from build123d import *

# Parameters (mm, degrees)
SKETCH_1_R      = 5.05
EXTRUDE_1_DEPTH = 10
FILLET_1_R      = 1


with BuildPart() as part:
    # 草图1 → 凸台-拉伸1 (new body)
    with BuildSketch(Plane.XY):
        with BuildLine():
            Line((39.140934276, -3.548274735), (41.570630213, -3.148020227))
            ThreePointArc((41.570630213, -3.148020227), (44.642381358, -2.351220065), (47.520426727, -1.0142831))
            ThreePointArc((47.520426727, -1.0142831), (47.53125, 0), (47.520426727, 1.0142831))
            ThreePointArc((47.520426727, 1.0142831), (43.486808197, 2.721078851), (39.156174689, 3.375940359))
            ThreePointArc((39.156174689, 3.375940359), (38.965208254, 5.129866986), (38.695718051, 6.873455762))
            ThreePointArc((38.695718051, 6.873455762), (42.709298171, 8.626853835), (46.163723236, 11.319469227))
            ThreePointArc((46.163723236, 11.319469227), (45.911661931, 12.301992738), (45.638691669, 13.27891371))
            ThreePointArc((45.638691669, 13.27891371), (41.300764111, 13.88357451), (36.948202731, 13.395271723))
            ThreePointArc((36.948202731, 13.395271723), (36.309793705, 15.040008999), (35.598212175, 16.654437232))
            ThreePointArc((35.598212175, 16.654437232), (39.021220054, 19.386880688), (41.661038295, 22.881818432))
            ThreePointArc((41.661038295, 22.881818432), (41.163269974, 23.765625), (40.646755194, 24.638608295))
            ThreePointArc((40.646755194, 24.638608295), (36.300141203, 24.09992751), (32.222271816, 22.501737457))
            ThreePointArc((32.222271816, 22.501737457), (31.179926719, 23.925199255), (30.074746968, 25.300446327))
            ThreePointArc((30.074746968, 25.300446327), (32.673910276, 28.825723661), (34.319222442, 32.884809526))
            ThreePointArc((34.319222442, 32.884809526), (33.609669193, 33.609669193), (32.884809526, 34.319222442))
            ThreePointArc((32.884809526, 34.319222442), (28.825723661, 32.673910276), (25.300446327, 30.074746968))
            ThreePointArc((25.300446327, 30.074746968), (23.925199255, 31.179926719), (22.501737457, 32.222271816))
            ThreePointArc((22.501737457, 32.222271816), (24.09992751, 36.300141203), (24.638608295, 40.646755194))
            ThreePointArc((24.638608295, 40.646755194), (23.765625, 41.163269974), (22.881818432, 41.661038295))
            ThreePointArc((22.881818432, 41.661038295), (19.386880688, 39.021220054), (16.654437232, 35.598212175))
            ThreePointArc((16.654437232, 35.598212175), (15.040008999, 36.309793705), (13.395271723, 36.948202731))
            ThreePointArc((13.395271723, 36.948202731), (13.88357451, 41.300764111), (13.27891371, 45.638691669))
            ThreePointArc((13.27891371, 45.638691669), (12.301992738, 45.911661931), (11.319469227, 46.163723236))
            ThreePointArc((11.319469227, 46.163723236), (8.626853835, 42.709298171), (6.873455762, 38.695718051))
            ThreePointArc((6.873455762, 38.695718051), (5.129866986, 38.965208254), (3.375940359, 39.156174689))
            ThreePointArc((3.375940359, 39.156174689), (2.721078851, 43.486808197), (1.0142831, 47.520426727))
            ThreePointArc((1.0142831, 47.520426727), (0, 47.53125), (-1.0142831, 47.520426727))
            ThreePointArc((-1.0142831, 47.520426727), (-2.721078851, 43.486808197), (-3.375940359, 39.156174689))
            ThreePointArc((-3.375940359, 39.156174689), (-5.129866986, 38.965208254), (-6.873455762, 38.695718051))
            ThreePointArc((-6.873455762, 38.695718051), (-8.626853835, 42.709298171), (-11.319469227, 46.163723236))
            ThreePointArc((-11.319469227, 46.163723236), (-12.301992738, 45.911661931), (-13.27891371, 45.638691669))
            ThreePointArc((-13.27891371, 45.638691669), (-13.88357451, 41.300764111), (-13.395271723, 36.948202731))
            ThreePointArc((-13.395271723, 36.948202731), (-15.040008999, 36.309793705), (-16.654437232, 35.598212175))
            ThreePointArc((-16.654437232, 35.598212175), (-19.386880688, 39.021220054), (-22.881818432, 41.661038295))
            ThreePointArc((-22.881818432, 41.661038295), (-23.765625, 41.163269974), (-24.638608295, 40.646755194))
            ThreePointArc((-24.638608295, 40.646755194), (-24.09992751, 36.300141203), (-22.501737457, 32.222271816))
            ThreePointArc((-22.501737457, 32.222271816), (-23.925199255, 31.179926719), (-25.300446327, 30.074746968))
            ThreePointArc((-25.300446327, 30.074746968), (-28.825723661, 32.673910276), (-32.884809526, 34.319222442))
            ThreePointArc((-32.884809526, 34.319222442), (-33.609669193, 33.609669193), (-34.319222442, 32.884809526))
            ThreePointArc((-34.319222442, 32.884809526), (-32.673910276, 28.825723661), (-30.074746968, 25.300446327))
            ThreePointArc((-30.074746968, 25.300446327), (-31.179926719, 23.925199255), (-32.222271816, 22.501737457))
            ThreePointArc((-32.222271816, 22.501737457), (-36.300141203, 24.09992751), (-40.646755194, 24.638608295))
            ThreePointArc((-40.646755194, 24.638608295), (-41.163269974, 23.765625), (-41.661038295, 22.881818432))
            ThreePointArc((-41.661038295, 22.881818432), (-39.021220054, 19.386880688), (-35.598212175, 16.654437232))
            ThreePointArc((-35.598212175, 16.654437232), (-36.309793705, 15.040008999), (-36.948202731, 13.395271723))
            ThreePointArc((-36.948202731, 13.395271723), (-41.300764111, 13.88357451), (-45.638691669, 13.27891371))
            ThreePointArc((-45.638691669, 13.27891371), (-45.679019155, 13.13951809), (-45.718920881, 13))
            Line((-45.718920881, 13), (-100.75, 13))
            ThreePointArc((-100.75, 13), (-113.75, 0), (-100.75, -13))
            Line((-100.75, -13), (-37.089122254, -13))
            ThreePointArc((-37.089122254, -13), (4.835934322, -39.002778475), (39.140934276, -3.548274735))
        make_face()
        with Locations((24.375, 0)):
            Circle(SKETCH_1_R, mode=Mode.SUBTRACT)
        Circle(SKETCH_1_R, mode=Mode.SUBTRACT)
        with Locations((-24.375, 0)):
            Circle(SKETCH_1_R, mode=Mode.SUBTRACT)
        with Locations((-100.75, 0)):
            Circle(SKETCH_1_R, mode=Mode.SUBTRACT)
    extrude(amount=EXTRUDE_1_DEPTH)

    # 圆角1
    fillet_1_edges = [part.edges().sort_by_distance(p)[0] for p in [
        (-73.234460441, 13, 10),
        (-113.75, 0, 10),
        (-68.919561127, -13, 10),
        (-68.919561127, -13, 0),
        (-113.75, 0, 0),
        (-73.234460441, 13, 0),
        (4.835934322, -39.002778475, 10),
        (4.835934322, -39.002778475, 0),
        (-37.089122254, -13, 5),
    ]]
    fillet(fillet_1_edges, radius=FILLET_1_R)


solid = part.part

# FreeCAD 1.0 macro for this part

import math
import FreeCAD as App
import Part
import Sketcher

V = App.Vector
Q = App.Units.Quantity


def edges_at(feature, points):
    """Names of the edges that pass closest to the given points."""
    edges = feature.Shape.Edges
    near = lambda p: min(range(len(edges)), key=lambda i: edges[i].distToShape(Part.Vertex(*p))[0])
    return sorted({f"Edge{near(p) + 1}" for p in points})

doc = App.newDocument("Part")
body = doc.addObject("PartDesign::Body", "Body")

sketch1 = body.newObject("Sketcher::SketchObject", "Sketch")
sketch1.AttachmentSupport = (doc.getObject("XY_Plane"), [""])
sketch1.MapMode = "FlatFace"
sketch1.addGeometry([
    Part.LineSegment(V(39.140934, -3.548275, 0), V(41.57063, -3.14802, 0)),
    Part.ArcOfCircle(Part.Circle(V(38.717989, 14.168588, 0), V(0, 0, 1), 17.55), math.radians(-80.64543), math.radians(-59.896512)),
    Part.ArcOfCircle(Part.Circle(V(0.000002, 0, 0), V(0, 0, 1), 47.531248), math.radians(-1.222744), math.radians(1.222744)),
    Part.ArcOfCircle(Part.Circle(V(38.717989, -14.168589, 0), V(0, 0, 1), 17.55), math.radians(59.896512), math.radians(88.569299)),
    Part.ArcOfCircle(Part.Circle(V(0, 0, 0), V(0, 0, 1), 39.301438), math.radians(4.927703), math.radians(10.072297)),
    Part.ArcOfCircle(Part.Circle(V(33.731605, 23.706759, 0), V(0, 0, 1), 17.55), math.radians(-73.569299), math.radians(-44.896512)),
    Part.ArcOfCircle(Part.Circle(V(0, 0, 0), V(0, 0, 1), 47.53125), math.radians(13.777256), math.radians(16.222744)),
    Part.ArcOfCircle(Part.Circle(V(41.065806, -3.664853, 0), V(0, 0, 1), 17.55), math.radians(74.896512), math.radians(103.569299)),
    Part.ArcOfCircle(Part.Circle(V(0, 0, 0), V(0, 0, 1), 39.301437), math.radians(19.927703), math.radians(25.072297)),
    Part.ArcOfCircle(Part.Circle(V(26.446468, 31.629352, 0), V(0, 0, 1), 17.55), math.radians(-58.569299), math.radians(-29.896512)),
    Part.ArcOfCircle(Part.Circle(V(0.000002, 0.000001, 0), V(0, 0, 1), 47.531248), math.radians(28.777256), math.radians(31.222744)),
    Part.ArcOfCircle(Part.Circle(V(40.615056, 7.088637, 0), V(0, 0, 1), 17.55), math.radians(89.896512), math.radians(118.569299)),
    Part.ArcOfCircle(Part.Circle(V(0, 0, 0), V(0, 0, 1), 39.301437), math.radians(34.927703), math.radians(40.072297)),
    Part.ArcOfCircle(Part.Circle(V(17.359048, 37.396458, 0), V(0, 0, 1), 17.55), math.radians(-43.569299), math.radians(-14.896512)),
    Part.ArcOfCircle(Part.Circle(V(-0.000002, -0.000002, 0), V(0, 0, 1), 47.531253), math.radians(43.777256), math.radians(46.222744)),
    Part.ArcOfCircle(Part.Circle(V(37.396458, 17.359048, 0), V(0, 0, 1), 17.55), math.radians(104.896512), math.radians(133.569299)),
    Part.ArcOfCircle(Part.Circle(V(0, 0, 0), V(0, 0, 1), 39.301437), math.radians(49.927703), math.radians(55.072297)),
    Part.ArcOfCircle(Part.Circle(V(7.088637, 40.615056, 0), V(0, 0, 1), 17.55), math.radians(-28.569299), math.radians(0.103488)),
    Part.ArcOfCircle(Part.Circle(V(0.000001, 0.000002, 0), V(0, 0, 1), 47.531248), math.radians(58.777256), math.radians(61.222744)),
    Part.ArcOfCircle(Part.Circle(V(31.629352, 26.446468, 0), V(0, 0, 1), 17.55), math.radians(119.896512), math.radians(148.569299)),
    Part.ArcOfCircle(Part.Circle(V(0, 0, 0), V(0, 0, 1), 39.301437), math.radians(64.927703), math.radians(70.072297)),
    Part.ArcOfCircle(Part.Circle(V(-3.664853, 41.065806, 0), V(0, 0, 1), 17.55), math.radians(-13.569299), math.radians(15.103488)),
    Part.ArcOfCircle(Part.Circle(V(0, 0, 0), V(0, 0, 1), 47.53125), math.radians(73.777256), math.radians(76.222744)),
    Part.ArcOfCircle(Part.Circle(V(23.706759, 33.731605, 0), V(0, 0, 1), 17.55), math.radians(134.896512), math.radians(163.569299)),
    Part.ArcOfCircle(Part.Circle(V(0, 0, 0), V(0, 0, 1), 39.301438), math.radians(79.927703), math.radians(85.072297)),
    Part.ArcOfCircle(Part.Circle(V(-14.168589, 38.717989, 0), V(0, 0, 1), 17.55), math.radians(1.430701), math.radians(30.103488)),
    Part.ArcOfCircle(Part.Circle(V(0, 0.000002, 0), V(0, 0, 1), 47.531248), math.radians(88.777256), math.radians(91.222744)),
    Part.ArcOfCircle(Part.Circle(V(14.168589, 38.717989, 0), V(0, 0, 1), 17.55), math.radians(149.896512), math.radians(178.569299)),
    Part.ArcOfCircle(Part.Circle(V(0, 0, 0), V(0, 0, 1), 39.301438), math.radians(94.927703), math.radians(100.072297)),
    Part.ArcOfCircle(Part.Circle(V(-23.706759, 33.731605, 0), V(0, 0, 1), 17.55), math.radians(16.430701), math.radians(45.103488)),
    Part.ArcOfCircle(Part.Circle(V(0, 0, 0), V(0, 0, 1), 47.53125), math.radians(103.777256), math.radians(106.222744)),
    Part.ArcOfCircle(Part.Circle(V(3.664853, 41.065806, 0), V(0, 0, 1), 17.55), math.radians(164.896512), math.radians(193.569299)),
    Part.ArcOfCircle(Part.Circle(V(0, 0, 0), V(0, 0, 1), 39.301437), math.radians(109.927703), math.radians(115.072297)),
    Part.ArcOfCircle(Part.Circle(V(-31.629352, 26.446468, 0), V(0, 0, 1), 17.55), math.radians(31.430701), math.radians(60.103488)),
    Part.ArcOfCircle(Part.Circle(V(-0.000001, 0.000002, 0), V(0, 0, 1), 47.531248), math.radians(118.777256), math.radians(121.222744)),
    Part.ArcOfCircle(Part.Circle(V(-7.088637, 40.615056, 0), V(0, 0, 1), 17.55), math.radians(179.896512), math.radians(208.569299)),
    Part.ArcOfCircle(Part.Circle(V(0, 0, 0), V(0, 0, 1), 39.301437), math.radians(124.927703), math.radians(130.072297)),
    Part.ArcOfCircle(Part.Circle(V(-37.396458, 17.359048, 0), V(0, 0, 1), 17.55), math.radians(46.430701), math.radians(75.103488)),
    Part.ArcOfCircle(Part.Circle(V(0.000002, -0.000002, 0), V(0, 0, 1), 47.531253), math.radians(133.777256), math.radians(136.222744)),
    Part.ArcOfCircle(Part.Circle(V(-17.359048, 37.396458, 0), V(0, 0, 1), 17.55), math.radians(-165.103488), math.radians(-136.430701)),
    Part.ArcOfCircle(Part.Circle(V(0, 0, 0), V(0, 0, 1), 39.301437), math.radians(139.927703), math.radians(145.072297)),
    Part.ArcOfCircle(Part.Circle(V(-40.615056, 7.088637, 0), V(0, 0, 1), 17.55), math.radians(61.430701), math.radians(90.103488)),
    Part.ArcOfCircle(Part.Circle(V(-0.000002, 0.000001, 0), V(0, 0, 1), 47.531248), math.radians(148.777256), math.radians(151.222744)),
    Part.ArcOfCircle(Part.Circle(V(-26.446468, 31.629352, 0), V(0, 0, 1), 17.55), math.radians(-150.103488), math.radians(-121.430701)),
    Part.ArcOfCircle(Part.Circle(V(0, 0, 0), V(0, 0, 1), 39.301437), math.radians(154.927703), math.radians(160.072297)),
    Part.ArcOfCircle(Part.Circle(V(-41.065806, -3.664853, 0), V(0, 0, 1), 17.55), math.radians(76.430701), math.radians(105.103488)),
    Part.ArcOfCircle(Part.Circle(V(-0.00011, 0.000032, 0), V(0, 0, 1), 47.531135), math.radians(163.777256), math.radians(164.127102)),
    Part.LineSegment(V(-45.718921, 13, 0), V(-100.75, 13, 0)),
    Part.ArcOfCircle(Part.Circle(V(-100.75, 0, 0), V(0, 0, 1), 13), math.radians(90), math.radians(270)),
    Part.LineSegment(V(-100.75, -13, 0), V(-37.089122, -13, 0)),
    Part.ArcOfCircle(Part.Circle(V(0, 0, 0), V(0, 0, 1), 39.301437), math.radians(-160.684075), math.radians(-5.179922)),
    Part.Circle(V(-100.75, 0, 0), V(0, 0, 1), 5.05),
    Part.Circle(V(-24.375, 0, 0), V(0, 0, 1), 5.05),
    Part.Circle(V(0, 0, 0), V(0, 0, 1), 5.05),
    Part.Circle(V(24.375, 0, 0), V(0, 0, 1), 5.05),
], False)
sketch1.addConstraint([
    Sketcher.Constraint("Coincident", 0, 2, 1, 1),
    Sketcher.Constraint("Coincident", 1, 2, 2, 1),
    Sketcher.Constraint("Coincident", 2, 2, 3, 1),
    Sketcher.Constraint("Coincident", 3, 2, 4, 1),
    Sketcher.Constraint("Coincident", 4, 2, 5, 1),
    Sketcher.Constraint("Coincident", 5, 2, 6, 1),
    Sketcher.Constraint("Coincident", 6, 2, 7, 1),
    Sketcher.Constraint("Coincident", 7, 2, 8, 1),
    Sketcher.Constraint("Coincident", 8, 2, 9, 1),
    Sketcher.Constraint("Coincident", 9, 2, 10, 1),
    Sketcher.Constraint("Coincident", 10, 2, 11, 1),
    Sketcher.Constraint("Coincident", 11, 2, 12, 1),
    Sketcher.Constraint("Coincident", 12, 2, 13, 1),
    Sketcher.Constraint("Coincident", 13, 2, 14, 1),
    Sketcher.Constraint("Coincident", 14, 2, 15, 1),
    Sketcher.Constraint("Coincident", 15, 2, 16, 1),
    Sketcher.Constraint("Coincident", 16, 2, 17, 1),
    Sketcher.Constraint("Coincident", 17, 2, 18, 1),
    Sketcher.Constraint("Coincident", 18, 2, 19, 1),
    Sketcher.Constraint("Coincident", 19, 2, 20, 1),
    Sketcher.Constraint("Coincident", 20, 2, 21, 1),
    Sketcher.Constraint("Coincident", 21, 2, 22, 1),
    Sketcher.Constraint("Coincident", 22, 2, 23, 1),
    Sketcher.Constraint("Coincident", 23, 2, 24, 1),
    Sketcher.Constraint("Coincident", 24, 2, 25, 1),
    Sketcher.Constraint("Coincident", 25, 2, 26, 1),
    Sketcher.Constraint("Coincident", 26, 2, 27, 1),
    Sketcher.Constraint("Coincident", 27, 2, 28, 1),
    Sketcher.Constraint("Coincident", 28, 2, 29, 1),
    Sketcher.Constraint("Coincident", 29, 2, 30, 1),
    Sketcher.Constraint("Coincident", 30, 2, 31, 1),
    Sketcher.Constraint("Coincident", 31, 2, 32, 1),
    Sketcher.Constraint("Coincident", 32, 2, 33, 1),
    Sketcher.Constraint("Coincident", 33, 2, 34, 1),
    Sketcher.Constraint("Coincident", 34, 2, 35, 1),
    Sketcher.Constraint("Coincident", 35, 2, 36, 1),
    Sketcher.Constraint("Coincident", 36, 2, 37, 1),
    Sketcher.Constraint("Coincident", 37, 2, 38, 1),
    Sketcher.Constraint("Coincident", 38, 2, 39, 1),
    Sketcher.Constraint("Coincident", 39, 2, 40, 1),
    Sketcher.Constraint("Coincident", 40, 2, 41, 1),
    Sketcher.Constraint("Coincident", 41, 2, 42, 1),
    Sketcher.Constraint("Coincident", 42, 2, 43, 1),
    Sketcher.Constraint("Coincident", 43, 2, 44, 1),
    Sketcher.Constraint("Coincident", 44, 2, 45, 1),
    Sketcher.Constraint("Coincident", 45, 2, 46, 1),
    Sketcher.Constraint("Coincident", 46, 2, 47, 1),
    Sketcher.Constraint("Coincident", 47, 2, 48, 1),
    Sketcher.Constraint("Coincident", 48, 2, 49, 1),
    Sketcher.Constraint("Coincident", 49, 2, 50, 1),
    Sketcher.Constraint("Coincident", 50, 2, 0, 1),
    Sketcher.Constraint("Horizontal", 47),
    Sketcher.Constraint("Horizontal", 49),
    Sketcher.Constraint("Coincident", 2, 3, -1, 1),
    Sketcher.Constraint("Coincident", 4, 3, -1, 1),
    Sketcher.Constraint("Coincident", 6, 3, -1, 1),
    Sketcher.Constraint("Coincident", 8, 3, -1, 1),
    Sketcher.Constraint("Coincident", 10, 3, -1, 1),
    Sketcher.Constraint("Coincident", 12, 3, -1, 1),
    Sketcher.Constraint("Coincident", 14, 3, -1, 1),
    Sketcher.Constraint("Coincident", 16, 3, -1, 1),
    Sketcher.Constraint("Coincident", 18, 3, -1, 1),
    Sketcher.Constraint("Coincident", 20, 3, -1, 1),
    Sketcher.Constraint("Coincident", 22, 3, -1, 1),
    Sketcher.Constraint("Coincident", 24, 3, -1, 1),
    Sketcher.Constraint("Coincident", 26, 3, -1, 1),
    Sketcher.Constraint("Coincident", 28, 3, -1, 1),
    Sketcher.Constraint("Coincident", 30, 3, -1, 1),
    Sketcher.Constraint("Coincident", 32, 3, -1, 1),
    Sketcher.Constraint("Coincident", 34, 3, -1, 1),
    Sketcher.Constraint("Coincident", 36, 3, -1, 1),
    Sketcher.Constraint("Coincident", 38, 3, -1, 1),
    Sketcher.Constraint("Coincident", 40, 3, -1, 1),
    Sketcher.Constraint("Coincident", 42, 3, -1, 1),
    Sketcher.Constraint("Coincident", 44, 3, -1, 1),
    Sketcher.Constraint("Coincident", 50, 3, -1, 1),
    Sketcher.Constraint("Coincident", 53, 3, -1, 1),
    Sketcher.Constraint("Coincident", 51, 3, 48, 3),
    Sketcher.Constraint("PointOnObject", 48, 3, -1),
    Sketcher.Constraint("PointOnObject", 52, 3, -1),
    Sketcher.Constraint("PointOnObject", 54, 3, -1),
    Sketcher.Constraint("Radius", 48, Q("13 mm")),
    Sketcher.Constraint("Diameter", 51, Q("10.1 mm")),
    Sketcher.Constraint("Diameter", 52, Q("10.1 mm")),
    Sketcher.Constraint("Diameter", 53, Q("10.1 mm")),
    Sketcher.Constraint("Diameter", 54, Q("10.1 mm")),
    Sketcher.Constraint("Radius", 1, Q("17.55 mm")),
    Sketcher.Constraint("Radius", 3, Q("17.55 mm")),
    Sketcher.Constraint("Radius", 5, Q("17.55 mm")),
    Sketcher.Constraint("Radius", 7, Q("17.55 mm")),
    Sketcher.Constraint("Radius", 9, Q("17.55 mm")),
    Sketcher.Constraint("Radius", 11, Q("17.55 mm")),
    Sketcher.Constraint("Radius", 13, Q("17.55 mm")),
    Sketcher.Constraint("Radius", 15, Q("17.55 mm")),
    Sketcher.Constraint("Radius", 17, Q("17.55 mm")),
    Sketcher.Constraint("Radius", 19, Q("17.55 mm")),
    Sketcher.Constraint("Radius", 21, Q("17.55 mm")),
    Sketcher.Constraint("Radius", 23, Q("17.55 mm")),
    Sketcher.Constraint("Radius", 25, Q("17.55 mm")),
    Sketcher.Constraint("Radius", 27, Q("17.55 mm")),
    Sketcher.Constraint("Radius", 29, Q("17.55 mm")),
    Sketcher.Constraint("Radius", 31, Q("17.55 mm")),
    Sketcher.Constraint("Radius", 33, Q("17.55 mm")),
    Sketcher.Constraint("Radius", 35, Q("17.55 mm")),
    Sketcher.Constraint("Radius", 37, Q("17.55 mm")),
    Sketcher.Constraint("Radius", 39, Q("17.55 mm")),
    Sketcher.Constraint("Radius", 41, Q("17.55 mm")),
    Sketcher.Constraint("Radius", 43, Q("17.55 mm")),
    Sketcher.Constraint("Radius", 45, Q("17.55 mm")),
    Sketcher.Constraint("DistanceX", 48, 3, -1, 1, Q("100.75 mm")),
    Sketcher.Constraint("DistanceX", 47, 2, -1, 1, Q("100.75 mm")),
    Sketcher.Constraint("DistanceX", 48, 2, -1, 1, Q("100.75 mm")),
    Sketcher.Constraint("Radius", 2, Q("47.531248 mm")),
    Sketcher.Constraint("Radius", 6, Q("47.53125 mm")),
    Sketcher.Constraint("Radius", 22, Q("47.53125 mm")),
    Sketcher.Constraint("Radius", 26, Q("47.531248 mm")),
    Sketcher.Constraint("Radius", 30, Q("47.53125 mm")),
    Sketcher.Constraint("DistanceX", 52, 3, -1, 1, Q("24.375 mm")),
    Sketcher.Constraint("DistanceX", -1, 1, 54, 3, Q("24.375 mm")),
    Sketcher.Constraint("Radius", 4, Q("39.301438 mm")),
    Sketcher.Constraint("Radius", 8, Q("39.301437 mm")),
    Sketcher.Constraint("Radius", 10, Q("47.531248 mm")),
    Sketcher.Constraint("Radius", 12, Q("39.301437 mm")),
    Sketcher.Constraint("Radius", 14, Q("47.531253 mm")),
    Sketcher.Constraint("Radius", 16, Q("39.301437 mm")),
    Sketcher.Constraint("Radius", 18, Q("47.531248 mm")),
    Sketcher.Constraint("Radius", 20, Q("39.301437 mm")),
    Sketcher.Constraint("Radius", 24, Q("39.301438 mm")),
    Sketcher.Constraint("Radius", 28, Q("39.301438 mm")),
    Sketcher.Constraint("Radius", 32, Q("39.301437 mm")),
    Sketcher.Constraint("Radius", 34, Q("47.531248 mm")),
    Sketcher.Constraint("Radius", 36, Q("39.301437 mm")),
    Sketcher.Constraint("Radius", 38, Q("47.531253 mm")),
    Sketcher.Constraint("Radius", 40, Q("39.301437 mm")),
    Sketcher.Constraint("Radius", 42, Q("47.531248 mm")),
    Sketcher.Constraint("Radius", 44, Q("39.301437 mm")),
    Sketcher.Constraint("Radius", 46, Q("47.531135 mm")),
    Sketcher.Constraint("Radius", 50, Q("39.301437 mm")),
    Sketcher.Constraint("DistanceX", 47, 2, 47, 1, Q("55.031079 mm")),
    Sketcher.Constraint("DistanceX", -1, 1, 1, 3, Q("38.717989 mm")),
    Sketcher.Constraint("DistanceY", -1, 1, 1, 3, Q("14.168588 mm")),
    Sketcher.Constraint("DistanceX", -1, 1, 3, 3, Q("38.717989 mm")),
    Sketcher.Constraint("DistanceY", 3, 3, -1, 1, Q("14.168589 mm")),
    Sketcher.Constraint("DistanceY", -1, 1, 5, 3, Q("23.706759 mm")),
    Sketcher.Constraint("DistanceX", -1, 1, 23, 3, Q("23.706759 mm")),
    Sketcher.Constraint("DistanceX", 25, 3, -1, 1, Q("14.168589 mm")),
    Sketcher.Constraint("DistanceY", -1, 1, 25, 3, Q("38.717989 mm")),
    Sketcher.Constraint("DistanceX", -1, 1, 27, 3, Q("14.168589 mm")),
    Sketcher.Constraint("DistanceY", -1, 1, 27, 3, Q("38.717989 mm")),
    Sketcher.Constraint("DistanceX", 29, 3, -1, 1, Q("23.706759 mm")),
    Sketcher.Constraint("DistanceX", 46, 3, -1, 1, Q("0.00011 mm")),
    Sketcher.Constraint("DistanceX", -1, 1, 0, 2, Q("41.57063 mm")),
    Sketcher.Constraint("DistanceX", -1, 1, 4, 2, Q("38.695718 mm")),
    Sketcher.Constraint("DistanceX", -1, 1, 6, 2, Q("45.638692 mm")),
    Sketcher.Constraint("DistanceY", -1, 1, 7, 2, Q("13.395272 mm")),
    Sketcher.Constraint("DistanceX", -1, 1, 9, 2, Q("41.661038 mm")),
    Sketcher.Constraint("DistanceY", -1, 1, 10, 2, Q("24.638608 mm")),
    Sketcher.Constraint("DistanceX", -1, 1, 11, 2, Q("32.222272 mm")),
    Sketcher.Constraint("DistanceY", -1, 1, 13, 2, Q("32.88481 mm")),
    Sketcher.Constraint("DistanceX", -1, 1, 14, 2, Q("32.88481 mm")),
    Sketcher.Constraint("DistanceY", -1, 1, 16, 2, Q("32.222272 mm")),
    Sketcher.Constraint("DistanceX", -1, 1, 17, 2, Q("24.638608 mm")),
    Sketcher.Constraint("DistanceX", -1, 1, 18, 2, Q("22.881818 mm")),
    Sketcher.Constraint("DistanceX", -1, 1, 20, 2, Q("13.395272 mm")),
    Sketcher.Constraint("DistanceY", -1, 1, 21, 2, Q("45.638692 mm")),
    Sketcher.Constraint("DistanceX", -1, 1, 22, 2, Q("11.319469 mm")),
    Sketcher.Constraint("DistanceY", -1, 1, 28, 2, Q("38.695718 mm")),
    Sketcher.Constraint("DistanceY", -1, 1, 30, 2, Q("45.638692 mm")),
    Sketcher.Constraint("DistanceX", 31, 2, -1, 1, Q("13.395272 mm")),
    Sketcher.Constraint("DistanceX", 33, 2, -1, 1, Q("22.881818 mm")),
    Sketcher.Constraint("DistanceX", 34, 2, -1, 1, Q("24.638608 mm")),
    Sketcher.Constraint("DistanceY", -1, 1, 35, 2, Q("32.222272 mm")),
    Sketcher.Constraint("DistanceX", 37, 2, -1, 1, Q("32.88481 mm")),
    Sketcher.Constraint("DistanceY", -1, 1, 38, 2, Q("32.88481 mm")),
    Sketcher.Constraint("DistanceX", 40, 2, -1, 1, Q("32.222272 mm")),
    Sketcher.Constraint("DistanceY", -1, 1, 41, 2, Q("24.638608 mm")),
    Sketcher.Constraint("DistanceX", 42, 2, -1, 1, Q("41.661038 mm")),
    Sketcher.Constraint("DistanceY", -1, 1, 44, 2, Q("13.395272 mm")),
    Sketcher.Constraint("DistanceX", 45, 2, -1, 1, Q("45.638692 mm")),
    Sketcher.Constraint("Distance", 0, Q("2.462443 mm")),
    Sketcher.Constraint("DistanceX", -1, 1, 9, 3, Q("26.446468 mm")),
    Sketcher.Constraint("DistanceX", -1, 1, 13, 3, Q("17.359048 mm")),
    Sketcher.Constraint("DistanceX", -1, 1, 15, 3, Q("37.396458 mm")),
    Sketcher.Constraint("DistanceX", -1, 1, 19, 3, Q("31.629352 mm")),
    Sketcher.Constraint("DistanceX", 33, 3, -1, 1, Q("31.629352 mm")),
    Sketcher.Constraint("DistanceX", 37, 3, -1, 1, Q("37.396458 mm")),
    Sketcher.Constraint("DistanceX", 39, 3, -1, 1, Q("17.359048 mm")),
    Sketcher.Constraint("DistanceX", 43, 3, -1, 1, Q("26.446468 mm")),
])
pad1 = body.newObject("PartDesign::Pad", "Pad")
pad1.Profile = sketch1
pad1.Length = 10
doc.recompute()

fillet = body.newObject("PartDesign::Fillet", "Fillet")
fillet.Base = (pad1, edges_at(pad1, [
    (-73.234, 13, 10),
    (-113.75, 0, 10),
    (-68.92, -13, 10),
    (-68.92, -13, 0),
    (-113.75, 0, 0),
    (-73.234, 13, 0),
    (4.836, -39.003, 10),
    (4.836, -39.003, 0),
    (-37.089, -13, 5),
]))
fillet.Radius = 1

doc.recompute()
